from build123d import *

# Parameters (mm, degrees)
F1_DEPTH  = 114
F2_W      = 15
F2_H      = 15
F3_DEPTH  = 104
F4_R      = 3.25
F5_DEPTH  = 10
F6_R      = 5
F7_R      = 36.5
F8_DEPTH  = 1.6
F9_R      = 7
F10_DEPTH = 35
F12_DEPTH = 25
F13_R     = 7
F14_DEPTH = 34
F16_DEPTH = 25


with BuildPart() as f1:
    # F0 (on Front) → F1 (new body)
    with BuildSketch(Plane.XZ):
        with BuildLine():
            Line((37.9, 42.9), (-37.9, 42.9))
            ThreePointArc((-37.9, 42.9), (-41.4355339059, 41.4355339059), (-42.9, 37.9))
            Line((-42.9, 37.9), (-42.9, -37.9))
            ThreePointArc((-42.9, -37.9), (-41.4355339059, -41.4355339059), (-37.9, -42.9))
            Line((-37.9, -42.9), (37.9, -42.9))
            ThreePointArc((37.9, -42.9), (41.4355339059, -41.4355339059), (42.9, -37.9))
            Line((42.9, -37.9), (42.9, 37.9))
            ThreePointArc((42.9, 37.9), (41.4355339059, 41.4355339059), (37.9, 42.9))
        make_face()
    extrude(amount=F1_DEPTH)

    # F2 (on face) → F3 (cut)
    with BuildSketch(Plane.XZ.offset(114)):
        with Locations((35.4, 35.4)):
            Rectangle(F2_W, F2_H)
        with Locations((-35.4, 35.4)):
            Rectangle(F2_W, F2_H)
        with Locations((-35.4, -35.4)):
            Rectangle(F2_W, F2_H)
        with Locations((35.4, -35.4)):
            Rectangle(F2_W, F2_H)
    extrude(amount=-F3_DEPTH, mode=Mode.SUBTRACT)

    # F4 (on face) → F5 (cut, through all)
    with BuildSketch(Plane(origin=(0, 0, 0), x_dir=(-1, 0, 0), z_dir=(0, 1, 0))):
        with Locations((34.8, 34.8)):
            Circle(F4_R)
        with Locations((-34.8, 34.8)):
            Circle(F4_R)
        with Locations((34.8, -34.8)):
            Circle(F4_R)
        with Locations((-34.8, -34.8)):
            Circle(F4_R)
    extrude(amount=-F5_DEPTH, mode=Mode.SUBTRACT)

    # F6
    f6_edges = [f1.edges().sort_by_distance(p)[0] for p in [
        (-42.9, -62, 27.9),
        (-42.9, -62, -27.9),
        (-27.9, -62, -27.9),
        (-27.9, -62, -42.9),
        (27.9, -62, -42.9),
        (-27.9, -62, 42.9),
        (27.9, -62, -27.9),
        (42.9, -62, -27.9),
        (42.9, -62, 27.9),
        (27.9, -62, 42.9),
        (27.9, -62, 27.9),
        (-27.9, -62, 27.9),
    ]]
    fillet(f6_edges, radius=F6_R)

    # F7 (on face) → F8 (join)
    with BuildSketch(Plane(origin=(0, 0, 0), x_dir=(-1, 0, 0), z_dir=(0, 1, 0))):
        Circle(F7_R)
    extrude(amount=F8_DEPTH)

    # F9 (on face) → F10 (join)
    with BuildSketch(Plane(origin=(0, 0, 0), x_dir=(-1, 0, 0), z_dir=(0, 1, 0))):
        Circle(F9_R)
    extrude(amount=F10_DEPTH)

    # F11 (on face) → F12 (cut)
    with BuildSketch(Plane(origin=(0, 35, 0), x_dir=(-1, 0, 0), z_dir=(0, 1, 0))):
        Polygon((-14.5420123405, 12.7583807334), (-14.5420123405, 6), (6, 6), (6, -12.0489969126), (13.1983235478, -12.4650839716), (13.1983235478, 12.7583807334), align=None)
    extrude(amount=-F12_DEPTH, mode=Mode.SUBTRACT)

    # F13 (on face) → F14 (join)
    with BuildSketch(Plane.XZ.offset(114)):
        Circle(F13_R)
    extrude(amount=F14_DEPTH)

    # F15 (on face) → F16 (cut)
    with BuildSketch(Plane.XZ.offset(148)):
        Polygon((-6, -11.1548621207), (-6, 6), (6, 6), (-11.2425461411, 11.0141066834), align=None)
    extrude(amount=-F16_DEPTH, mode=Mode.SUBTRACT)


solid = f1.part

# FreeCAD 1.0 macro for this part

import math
import FreeCAD as App
import Part
import Sketcher
Q = App.Units.Quantity


def edges_at(feature, points):
    """Names of the edges that pass closest to the given points."""
    edges = feature.Shape.Edges
    near = lambda p: min(range(len(edges)), key=lambda i: edges[i].distToShape(Part.Vertex(*p))[0])
    return sorted({f"Edge{near(p) + 1}" for p in points})

doc = App.newDocument("Part")
params = doc.addObject("Spreadsheet::Sheet", "Params")
for row, (alias, value) in enumerate([
    ("sketch1_radius", "5 mm"),
    ("sketch1_width", "75.8 mm"),
    ("pad1_length", "114 mm"),
    ("sketch2_width", "15 mm"),
    ("pocket1_length", "104 mm"),
    ("sketch3_diameter", "6.5 mm"),
    ("fillet_radius", "5 mm"),
    ("sketch4_diameter", "73 mm"),
    ("pad2_length", "1.6 mm"),
    ("sketch5_diameter", "14 mm"),
    ("pad3_length", "35 mm"),
    ("pocket3_length", "25 mm"),
    ("sketch7_diameter", "14 mm"),
    ("pad4_length", "34 mm"),
    ("sketch8_width", "12 mm"),
    ("pocket4_length", "25 mm"),
], start=1):
    params.set(f"A{row}", alias)
    params.set(f"B{row}", "=" + value)
    params.setAlias(f"B{row}", alias)

body = doc.addObject("PartDesign::Body", "Body")

sketch1 = body.newObject("Sketcher::SketchObject", "Sketch")
sketch1.AttachmentSupport = (doc.getObject("XZ_Plane"), [""])
sketch1.MapMode = "FlatFace"
sketch1.addGeometry([
    Part.LineSegment(App.Vector(38, 43, 0), App.Vector(-38, 43, 0)),
    Part.ArcOfCircle(Part.Circle(App.Vector(-38, 38, 0), App.Vector(0, 0, 1), 5), math.radians(90), math.radians(180)),
    Part.LineSegment(App.Vector(-43, 38, 0), App.Vector(-43, -38, 0)),
    Part.ArcOfCircle(Part.Circle(App.Vector(-38, -38, 0), App.Vector(0, 0, 1), 5), math.radians(180), math.radians(270)),
    Part.LineSegment(App.Vector(-38, -43, 0), App.Vector(38, -43, 0)),
    Part.ArcOfCircle(Part.Circle(App.Vector(38, -38, 0), App.Vector(0, 0, 1), 5), math.radians(-90), math.radians(0)),
    Part.LineSegment(App.Vector(43, -38, 0), App.Vector(43, 38, 0)),
    Part.ArcOfCircle(Part.Circle(App.Vector(38, 38, 0), App.Vector(0, 0, 1), 5), math.radians(0), math.radians(90)),
], False)
sketch1.addConstraint([
    Sketcher.Constraint("Tangent", 0, 2, 1, 1),
    Sketcher.Constraint("Tangent", 1, 2, 2, 1),
    Sketcher.Constraint("Tangent", 2, 2, 3, 1),
    Sketcher.Constraint("Tangent", 3, 2, 4, 1),
    Sketcher.Constraint("Tangent", 4, 2, 5, 1),
    Sketcher.Constraint("Tangent", 5, 2, 6, 1),
    Sketcher.Constraint("Tangent", 6, 2, 7, 1),
    Sketcher.Constraint("Tangent", 7, 2, 0, 1),
    Sketcher.Constraint("Horizontal", 0),
    Sketcher.Constraint("Vertical", 2),
    Sketcher.Constraint("Horizontal", 4),
    Sketcher.Constraint("Vertical", 6),
    Sketcher.Constraint("Equal", 1, 3),
    Sketcher.Constraint("Equal", 3, 5),
    Sketcher.Constraint("Equal", 5, 7),
    Sketcher.Constraint("Symmetric", 1, 3, 5, 3, -1, 1),
    Sketcher.Constraint("Equal", 4, 2),
    Sketcher.Constraint("Radius", 1, Q("5 mm")),
    Sketcher.Constraint("DistanceX", 0, 2, 0, 1, Q("75.8 mm")),
])
sketch1.setExpression("Constraints[17]", "Params.sketch1_radius")
sketch1.setExpression("Constraints[18]", "Params.sketch1_width")
pad1 = body.newObject("PartDesign::Pad", "Pad")
pad1.Profile = sketch1
pad1.setExpression("Length", "Params.pad1_length")

sketch2 = body.newObject("Sketcher::SketchObject", "Sketch001")
sketch2.AttachmentSupport = (doc.getObject("XZ_Plane"), [""])
sketch2.MapMode = "FlatFace"
sketch2.AttachmentOffset = App.Placement(App.Vector(0, 0, 114), App.Rotation())
sketch2.addGeometry([
    Part.LineSegment(App.Vector(28, 43, 0), App.Vector(28, 28, 0)),
    Part.LineSegment(App.Vector(28, 28, 0), App.Vector(43, 28, 0)),
    Part.LineSegment(App.Vector(43, 28, 0), App.Vector(43, 43, 0)),
    Part.LineSegment(App.Vector(43, 43, 0), App.Vector(28, 43, 0)),
    Part.LineSegment(App.Vector(-43, 43, 0), App.Vector(-43, 28, 0)),
    Part.LineSegment(App.Vector(-43, 28, 0), App.Vector(-28, 28, 0)),
    Part.LineSegment(App.Vector(-28, 28, 0), App.Vector(-28, 43, 0)),
    Part.LineSegment(App.Vector(-28, 43, 0), App.Vector(-43, 43, 0)),
    Part.LineSegment(App.Vector(-43, -28, 0), App.Vector(-43, -43, 0)),
    Part.LineSegment(App.Vector(-43, -43, 0), App.Vector(-28, -43, 0)),
    Part.LineSegment(App.Vector(-28, -43, 0), App.Vector(-28, -28, 0)),
    Part.LineSegment(App.Vector(-28, -28, 0), App.Vector(-43, -28, 0)),
    Part.LineSegment(App.Vector(28, -28, 0), App.Vector(28, -43, 0)),
    Part.LineSegment(App.Vector(28, -43, 0), App.Vector(43, -43, 0)),
    Part.LineSegment(App.Vector(43, -43, 0), App.Vector(43, -28, 0)),
    Part.LineSegment(App.Vector(43, -28, 0), App.Vector(28, -28, 0)),
], False)
sketch2.addConstraint([
    Sketcher.Constraint("Coincident", 0, 2, 1, 1),
    Sketcher.Constraint("Coincident", 1, 2, 2, 1),
    Sketcher.Constraint("Coincident", 2, 2, 3, 1),
    Sketcher.Constraint("Coincident", 3, 2, 0, 1),
    Sketcher.Constraint("Coincident", 4, 2, 5, 1),
    Sketcher.Constraint("Coincident", 5, 2, 6, 1),
    Sketcher.Constraint("Coincident", 6, 2, 7, 1),
    Sketcher.Constraint("Coincident", 7, 2, 4, 1),
    Sketcher.Constraint("Coincident", 8, 2, 9, 1),
    Sketcher.Constraint("Coincident", 9, 2, 10, 1),
    Sketcher.Constraint("Coincident", 10, 2, 11, 1),
    Sketcher.Constraint("Coincident", 11, 2, 8, 1),
    Sketcher.Constraint("Coincident", 12, 2, 13, 1),
    Sketcher.Constraint("Coincident", 13, 2, 14, 1),
    Sketcher.Constraint("Coincident", 14, 2, 15, 1),
    Sketcher.Constraint("Coincident", 15, 2, 12, 1),
    Sketcher.Constraint("Vertical", 0),
    Sketcher.Constraint("Horizontal", 1),
    Sketcher.Constraint("Vertical", 2),
    Sketcher.Constraint("Horizontal", 3),
    Sketcher.Constraint("Vertical", 4),
    Sketcher.Constraint("Horizontal", 5),
    Sketcher.Constraint("Vertical", 6),
    Sketcher.Constraint("Horizontal", 7),
    Sketcher.Constraint("Vertical", 8),
    Sketcher.Constraint("Horizontal", 9),
    Sketcher.Constraint("Vertical", 10),
    Sketcher.Constraint("Horizontal", 11),
    Sketcher.Constraint("Vertical", 12),
    Sketcher.Constraint("Horizontal", 13),
    Sketcher.Constraint("Vertical", 14),
    Sketcher.Constraint("Horizontal", 15),
    Sketcher.Constraint("Symmetric", 2, 2, 8, 2, -1, 1),
    Sketcher.Constraint("Symmetric", 0, 2, 10, 2, -1, 1),
    Sketcher.Constraint("Symmetric", 6, 2, 12, 2, -1, 1),
    Sketcher.Constraint("Symmetric", 4, 2, 14, 2, -1, 1),
    Sketcher.Constraint("Symmetric", 1, 2, 4, 2, -2),
    Sketcher.Constraint("Symmetric", 3, 2, 6, 2, -2),
    Sketcher.Constraint("Equal", 15, 0),
    Sketcher.Constraint("DistanceX", 1, 1, 1, 2, Q("15 mm")),
    Sketcher.Constraint("DistanceX", -1, 1, 0, 2, Q("27.9 mm")),
    Sketcher.Constraint("DistanceY", -1, 1, 0, 2, Q("27.9 mm")),
])
sketch2.setExpression("Constraints[39]", "Params.sketch2_width")
pocket1 = body.newObject("PartDesign::Pocket", "Pocket")
pocket1.Profile = sketch2
pocket1.setExpression("Length", "Params.pocket1_length")

sketch3 = body.newObject("Sketcher::SketchObject", "Sketch002")
sketch3.AttachmentSupport = (doc.getObject("XZ_Plane"), [""])
sketch3.MapMode = "FlatFace"
sketch3.addGeometry([
    Part.Circle(App.Vector(-34.8, 34.8, 0), App.Vector(0, 0, 1), 3.2),
    Part.Circle(App.Vector(34.8, 34.8, 0), App.Vector(0, 0, 1), 3.2),
    Part.Circle(App.Vector(-34.8, -34.8, 0), App.Vector(0, 0, 1), 3.2),
    Part.Circle(App.Vector(34.8, -34.8, 0), App.Vector(0, 0, 1), 3.2),
], False)
sketch3.addConstraint([
    Sketcher.Constraint("Equal", 0, 1),
    Sketcher.Constraint("Equal", 1, 2),
    Sketcher.Constraint("Equal", 2, 3),
    Sketcher.Constraint("Symmetric", 1, 3, 2, 3, -1, 1),
    Sketcher.Constraint("Symmetric", 0, 3, 3, 3, -1, 1),
    Sketcher.Constraint("Symmetric", 0, 3, 1, 3, -2),
    Sketcher.Constraint("Diameter", 0, Q("6.5 mm")),
    Sketcher.Constraint("DistanceX", 0, 3, -1, 1, Q("34.8 mm")),
    Sketcher.Constraint("DistanceY", -1, 1, 0, 3, Q("34.8 mm")),
])
sketch3.setExpression("Constraints[6]", "Params.sketch3_diameter")
pocket2 = body.newObject("PartDesign::Pocket", "Pocket001")
pocket2.Profile = sketch3
pocket2.Type = "ThroughAll"
pocket2.Reversed = True
doc.recompute()

fillet = body.newObject("PartDesign::Fillet", "Fillet")
fillet.Base = (pocket2, edges_at(pocket2, [
    (-42.9, -62, 27.9),
    (-42.9, -62, -27.9),
    (-27.9, -62, -27.9),
    (-27.9, -62, -42.9),
    (27.9, -62, -42.9),
    (-27.9, -62, 42.9),
    (27.9, -62, -27.9),
    (42.9, -62, -27.9),
    (42.9, -62, 27.9),
    (27.9, -62, 42.9),
    (27.9, -62, 27.9),
    (-27.9, -62, 27.9),
]))
fillet.setExpression("Radius", "Params.fillet_radius")

sketch4 = body.newObject("Sketcher::SketchObject", "Sketch003")
sketch4.AttachmentSupport = (doc.getObject("XZ_Plane"), [""])
sketch4.MapMode = "FlatFace"
sketch4.addGeometry(Part.Circle(App.Vector(0, 0, 0), App.Vector(0, 0, 1), 36), False)
sketch4.addConstraint([
    Sketcher.Constraint("Coincident", 0, 3, -1, 1),
    Sketcher.Constraint("Diameter", 0, Q("73 mm")),
])
sketch4.setExpression("Constraints[1]", "Params.sketch4_diameter")
pad2 = body.newObject("PartDesign::Pad", "Pad001")
pad2.Profile = sketch4
pad2.setExpression("Length", "Params.pad2_length")
pad2.Reversed = True

sketch5 = body.newObject("Sketcher::SketchObject", "Sketch004")
sketch5.AttachmentSupport = (doc.getObject("XZ_Plane"), [""])
sketch5.MapMode = "FlatFace"
sketch5.addGeometry(Part.Circle(App.Vector(0, 0, 0), App.Vector(0, 0, 1), 7), False)
sketch5.addConstraint([
    Sketcher.Constraint("Coincident", 0, 3, -1, 1),
    Sketcher.Constraint("Diameter", 0, Q("14 mm")),
])
sketch5.setExpression("Constraints[1]", "Params.sketch5_diameter")
pad3 = body.newObject("PartDesign::Pad", "Pad002")
pad3.Profile = sketch5
pad3.setExpression("Length", "Params.pad3_length")
pad3.Reversed = True

sketch6 = body.newObject("Sketcher::SketchObject", "Sketch005")
sketch6.AttachmentSupport = (doc.getObject("XZ_Plane"), [""])
sketch6.MapMode = "FlatFace"
sketch6.AttachmentOffset = App.Placement(App.Vector(0, 0, -35), App.Rotation())
sketch6.addGeometry([
    Part.LineSegment(App.Vector(14.542012, 12.758381, 0), App.Vector(14.542012, 6, 0)),
    Part.LineSegment(App.Vector(14.542012, 6, 0), App.Vector(-6, 6, 0)),
    Part.LineSegment(App.Vector(-6, 6, 0), App.Vector(-6, -12.048997, 0)),
    Part.LineSegment(App.Vector(-6, -12.048997, 0), App.Vector(-13.198324, -12.465084, 0)),
    Part.LineSegment(App.Vector(-13.198324, -12.465084, 0), App.Vector(-13.198324, 12.758381, 0)),
    Part.LineSegment(App.Vector(-13.198324, 12.758381, 0), App.Vector(14.542012, 12.758381, 0)),
], False)
sketch6.addConstraint([
    Sketcher.Constraint("Coincident", 0, 2, 1, 1),
    Sketcher.Constraint("Coincident", 1, 2, 2, 1),
    Sketcher.Constraint("Coincident", 2, 2, 3, 1),
    Sketcher.Constraint("Coincident", 3, 2, 4, 1),
    Sketcher.Constraint("Coincident", 4, 2, 5, 1),
    Sketcher.Constraint("Coincident", 5, 2, 0, 1),
    Sketcher.Constraint("Vertical", 0),
    Sketcher.Constraint("Horizontal", 1),
    Sketcher.Constraint("Vertical", 2),
    Sketcher.Constraint("Vertical", 4),
    Sketcher.Constraint("Horizontal", 5),
    Sketcher.Constraint("DistanceY", -1, 1, 0, 2, Q("6 mm")),
    Sketcher.Constraint("DistanceX", 1, 2, -1, 1, Q("6 mm")),
    Sketcher.Constraint("DistanceY", 0, 2, 0, 1, Q("6.758381 mm")),
    Sketcher.Constraint("Distance", 3, Q("7.210339 mm")),
    Sketcher.Constraint("DistanceX", 1, 2, 1, 1, Q("20.542012 mm")),
    Sketcher.Constraint("DistanceX", 5, 1, 5, 2, Q("27.740336 mm")),
    Sketcher.Constraint("DistanceY", 2, 2, 2, 1, Q("18.048997 mm")),
])
pocket3 = body.newObject("PartDesign::Pocket", "Pocket002")
pocket3.Profile = sketch6
pocket3.setExpression("Length", "Params.pocket3_length")
pocket3.Reversed = True

sketch7 = body.newObject("Sketcher::SketchObject", "Sketch006")
sketch7.AttachmentSupport = (doc.getObject("XZ_Plane"), [""])
sketch7.MapMode = "FlatFace"
sketch7.AttachmentOffset = App.Placement(App.Vector(0, 0, 114), App.Rotation())
sketch7.addGeometry(Part.Circle(App.Vector(0, 0, 0), App.Vector(0, 0, 1), 7), False)
sketch7.addConstraint([
    Sketcher.Constraint("Coincident", 0, 3, -1, 1),
    Sketcher.Constraint("Diameter", 0, Q("14 mm")),
])
sketch7.setExpression("Constraints[1]", "Params.sketch7_diameter")
pad4 = body.newObject("PartDesign::Pad", "Pad003")
pad4.Profile = sketch7
pad4.setExpression("Length", "Params.pad4_length")

sketch8 = body.newObject("Sketcher::SketchObject", "Sketch007")
sketch8.AttachmentSupport = (doc.getObject("XZ_Plane"), [""])
sketch8.MapMode = "FlatFace"
sketch8.AttachmentOffset = App.Placement(App.Vector(0, 0, 148), App.Rotation())
sketch8.addGeometry([
    Part.LineSegment(App.Vector(-6, -11, 0), App.Vector(-6, 6, 0)),
    Part.LineSegment(App.Vector(-6, 6, 0), App.Vector(6, 6, 0)),
    Part.LineSegment(App.Vector(6, 6, 0), App.Vector(-11, 11, 0)),
    Part.LineSegment(App.Vector(-11, 11, 0), App.Vector(-6, -11, 0)),
], False)
sketch8.addConstraint([
    Sketcher.Constraint("Coincident", 0, 2, 1, 1),
    Sketcher.Constraint("Coincident", 1, 2, 2, 1),
    Sketcher.Constraint("Coincident", 2, 2, 3, 1),
    Sketcher.Constraint("Coincident", 3, 2, 0, 1),
    Sketcher.Constraint("Vertical", 0),
    Sketcher.Constraint("Horizontal", 1),
    Sketcher.Constraint("DistanceX", 1, 1, 1, 2, Q("12 mm")),
    Sketcher.Constraint("DistanceX", 0, 2, -1, 1, Q("6 mm")),
    Sketcher.Constraint("DistanceY", -1, 1, 0, 2, Q("6 mm")),
    Sketcher.Constraint("Distance", 2, Q("17.9568 mm")),
    Sketcher.Constraint("Distance", 3, Q("22.780419 mm")),
    Sketcher.Constraint("DistanceY", 0, 1, 0, 2, Q("17.154862 mm")),
])
sketch8.setExpression("Constraints[6]", "Params.sketch8_width")
pocket4 = body.newObject("PartDesign::Pocket", "Pocket003")
pocket4.Profile = sketch8
pocket4.setExpression("Length", "Params.pocket4_length")

doc.recompute()
